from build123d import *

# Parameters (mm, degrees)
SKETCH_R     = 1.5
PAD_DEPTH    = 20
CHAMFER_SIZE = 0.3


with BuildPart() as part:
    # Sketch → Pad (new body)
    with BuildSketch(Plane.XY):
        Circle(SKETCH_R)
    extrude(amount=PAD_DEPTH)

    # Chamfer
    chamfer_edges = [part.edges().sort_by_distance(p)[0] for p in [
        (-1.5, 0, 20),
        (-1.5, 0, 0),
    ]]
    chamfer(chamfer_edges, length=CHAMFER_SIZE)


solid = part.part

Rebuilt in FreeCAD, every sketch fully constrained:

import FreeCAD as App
import Part
import Sketcher
from FreeCAD import Vector


def edges_at(feature, points):
    """Names of the edges that pass closest to the given points."""
    edges = feature.Shape.Edges
    near = lambda p: min(range(len(edges)), key=lambda i: edges[i].distToShape(Part.Vertex(*p))[0])
    return sorted({f"Edge{near(p) + 1}" for p in points})

doc = App.newDocument("Part")
params = doc.addObject("Spreadsheet::Sheet", "Params")
for row, (alias, value) in enumerate([
    ("sketch1_diameter", "3 mm"),
    ("pad1_length", "20 mm"),
    ("chamfer_size", "0.3 mm"),
], start=1):
    params.set(f"A{row}", alias)
    params.set(f"B{row}", "=" + value)
    params.setAlias(f"B{row}", alias)

body = doc.addObject("PartDesign::Body", "Body")

sketch1 = body.newObject("Sketcher::SketchObject", "Sketch")
sketch1.AttachmentSupport = (doc.getObject("XY_Plane"), [""])
sketch1.MapMode = "FlatFace"
sketch1.addGeometry(Part.Circle(Vector(0, 0, 0), Vector(0, 0, 1), 1.5), False)
sketch1.addConstraint([
    Sketcher.Constraint("Coincident", 0, 3, -1, 1),
    Sketcher.Constraint("Diameter", 0, 3.0),
])
sketch1.setExpression("Constraints[1]", "Params.sketch1_diameter")
pad1 = body.newObject("PartDesign::Pad", "Pad")
pad1.Profile = sketch1
pad1.setExpression("Length", "Params.pad1_length")
doc.recompute()

chamfer = body.newObject("PartDesign::Chamfer", "Chamfer")
chamfer.Base = (pad1, edges_at(pad1, [(-1.5, 0, 20), (-1.5, 0, 0)]))
chamfer.setExpression("Size", "Params.chamfer_size")

doc.recompute()
